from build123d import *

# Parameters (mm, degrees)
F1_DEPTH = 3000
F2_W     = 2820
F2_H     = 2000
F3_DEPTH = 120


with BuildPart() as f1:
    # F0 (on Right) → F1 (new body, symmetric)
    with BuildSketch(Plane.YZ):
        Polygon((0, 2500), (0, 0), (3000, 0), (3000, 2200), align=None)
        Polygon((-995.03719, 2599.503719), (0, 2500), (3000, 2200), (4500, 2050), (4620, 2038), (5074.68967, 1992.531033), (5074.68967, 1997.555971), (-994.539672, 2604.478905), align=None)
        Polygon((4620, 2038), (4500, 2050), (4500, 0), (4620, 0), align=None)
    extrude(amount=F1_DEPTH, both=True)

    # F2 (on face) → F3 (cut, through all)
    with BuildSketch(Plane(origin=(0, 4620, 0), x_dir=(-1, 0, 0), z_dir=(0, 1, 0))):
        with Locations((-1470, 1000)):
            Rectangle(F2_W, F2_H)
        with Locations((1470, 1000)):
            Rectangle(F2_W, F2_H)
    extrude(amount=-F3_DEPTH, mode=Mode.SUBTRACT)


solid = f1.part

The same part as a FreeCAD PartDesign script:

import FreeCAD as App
import Part
import Sketcher
Q = App.Units.Quantity


def add_polygon(sketch, points):
    """Adds a closed chain of lines whose ends are joined by coincident constraints."""
    first, n = sketch.GeometryCount, len(points)
    for a, b in zip(points, points[1:] + points[:1]):
        sketch.addGeometry(Part.LineSegment(App.Vector(*a, 0), App.Vector(*b, 0)), False)
    for i in range(n):
        sketch.addConstraint(Sketcher.Constraint("Coincident", first + i, 2, first + (i + 1) % n, 1))

doc = App.newDocument("Part")
body = doc.addObject("PartDesign::Body", "Body")

sketch1 = body.newObject("Sketcher::SketchObject", "Sketch")
sketch1.AttachmentSupport = (doc.getObject("YZ_Plane"), [""])
sketch1.MapMode = "FlatFace"
add_polygon(sketch1, [(0, 2500), (0, 0), (3000, 0), (3000, 2200), (4500, 2050), (4500, 0), (4620, 0), (4620, 2038), (5074.7, 1992.5), (5074.7, 1997.6), (-994.5, 2604.5), (-995, 2599.5)])
sketch1.addConstraint(Sketcher.Constraint("Vertical", 0))
sketch1.addConstraint(Sketcher.Constraint("Horizontal", 1))
sketch1.addConstraint(Sketcher.Constraint("Vertical", 2))
sketch1.addConstraint(Sketcher.Constraint("Vertical", 4))
sketch1.addConstraint(Sketcher.Constraint("Horizontal", 5))
sketch1.addConstraint(Sketcher.Constraint("Vertical", 6))
sketch1.addConstraint(Sketcher.Constraint("Vertical", 8))
sketch1.addConstraint(Sketcher.Constraint("Coincident", 0, 2, -1, 1))
sketch1.addConstraint(Sketcher.Constraint("PointOnObject", 4, 2, -1))
sketch1.addConstraint(Sketcher.Constraint("Parallel", 3, 7))
sketch1.addConstraint(Sketcher.Constraint("Parallel", 7, 9))
sketch1.addConstraint(Sketcher.Constraint("Perpendicular", 9, 10))
sketch1.addConstraint(Sketcher.Constraint("Perpendicular", 10, 11))
sketch1.addConstraint(Sketcher.Constraint("DistanceX", 1, 1, 1, 2, Q("3000 mm")))
sketch1.addConstraint(Sketcher.Constraint("DistanceX", 5, 1, 5, 2, Q("120 mm")))
sketch1.addConstraint(Sketcher.Constraint("DistanceY", 0, 2, 0, 1, Q("2500 mm")))
sketch1.addConstraint(Sketcher.Constraint("DistanceY", 2, 1, 2, 2, Q("2200 mm")))
sketch1.addConstraint(Sketcher.Constraint("DistanceY", 4, 2, 4, 1, Q("2050 mm")))
sketch1.addConstraint(Sketcher.Constraint("DistanceY", 6, 1, 6, 2, Q("2038 mm")))
sketch1.addConstraint(Sketcher.Constraint("Distance", 10, Q("5 mm")))
sketch1.addConstraint(Sketcher.Constraint("Distance", 11, Q("1000 mm")))
sketch1.addConstraint(Sketcher.Constraint("DistanceX", -1, 1, 3, 2, Q("4500 mm")))
sketch1.addConstraint(Sketcher.Constraint("Distance", 9, Q("6099.5 mm")))
pad1 = body.newObject("PartDesign::Pad", "Pad")
pad1.Profile = sketch1
pad1.Length = 6000
pad1.Midplane = True

sketch2 = body.newObject("Sketcher::SketchObject", "Sketch001")
sketch2.AttachmentSupport = (doc.getObject("XZ_Plane"), [""])
sketch2.MapMode = "FlatFace"
sketch2.AttachmentOffset = App.Placement(App.Vector(0, 0, -4620), App.Rotation())
add_polygon(sketch2, [(2880, 2000), (2880, 0), (60, 0), (60, 2000)])
add_polygon(sketch2, [(-60, 2000), (-60, 0), (-2880, 0), (-2880, 2000)])
sketch2.addConstraint(Sketcher.Constraint("Vertical", 0))
sketch2.addConstraint(Sketcher.Constraint("Horizontal", 1))
sketch2.addConstraint(Sketcher.Constraint("Vertical", 2))
sketch2.addConstraint(Sketcher.Constraint("Horizontal", 3))
sketch2.addConstraint(Sketcher.Constraint("Vertical", 4))
sketch2.addConstraint(Sketcher.Constraint("Horizontal", 5))
sketch2.addConstraint(Sketcher.Constraint("Vertical", 6))
sketch2.addConstraint(Sketcher.Constraint("Horizontal", 7))
sketch2.addConstraint(Sketcher.Constraint("Symmetric", 1, 2, 4, 2, -1, 1))
sketch2.addConstraint(Sketcher.Constraint("Symmetric", 0, 2, 5, 2, -2))
sketch2.addConstraint(Sketcher.Constraint("Horizontal", 3, 2, 6, 2))
sketch2.addConstraint(Sketcher.Constraint("DistanceX", 1, 2, 1, 1, Q("2820 mm")))
sketch2.addConstraint(Sketcher.Constraint("DistanceY", 0, 2, 0, 1, Q("2000 mm")))
sketch2.addConstraint(Sketcher.Constraint("DistanceX", -1, 1, 0, 2, Q("2880 mm")))
pocket1 = body.newObject("PartDesign::Pocket", "Pocket")
pocket1.Profile = sketch2
pocket1.Length = 120
pocket1.Reversed = True

doc.recompute()
